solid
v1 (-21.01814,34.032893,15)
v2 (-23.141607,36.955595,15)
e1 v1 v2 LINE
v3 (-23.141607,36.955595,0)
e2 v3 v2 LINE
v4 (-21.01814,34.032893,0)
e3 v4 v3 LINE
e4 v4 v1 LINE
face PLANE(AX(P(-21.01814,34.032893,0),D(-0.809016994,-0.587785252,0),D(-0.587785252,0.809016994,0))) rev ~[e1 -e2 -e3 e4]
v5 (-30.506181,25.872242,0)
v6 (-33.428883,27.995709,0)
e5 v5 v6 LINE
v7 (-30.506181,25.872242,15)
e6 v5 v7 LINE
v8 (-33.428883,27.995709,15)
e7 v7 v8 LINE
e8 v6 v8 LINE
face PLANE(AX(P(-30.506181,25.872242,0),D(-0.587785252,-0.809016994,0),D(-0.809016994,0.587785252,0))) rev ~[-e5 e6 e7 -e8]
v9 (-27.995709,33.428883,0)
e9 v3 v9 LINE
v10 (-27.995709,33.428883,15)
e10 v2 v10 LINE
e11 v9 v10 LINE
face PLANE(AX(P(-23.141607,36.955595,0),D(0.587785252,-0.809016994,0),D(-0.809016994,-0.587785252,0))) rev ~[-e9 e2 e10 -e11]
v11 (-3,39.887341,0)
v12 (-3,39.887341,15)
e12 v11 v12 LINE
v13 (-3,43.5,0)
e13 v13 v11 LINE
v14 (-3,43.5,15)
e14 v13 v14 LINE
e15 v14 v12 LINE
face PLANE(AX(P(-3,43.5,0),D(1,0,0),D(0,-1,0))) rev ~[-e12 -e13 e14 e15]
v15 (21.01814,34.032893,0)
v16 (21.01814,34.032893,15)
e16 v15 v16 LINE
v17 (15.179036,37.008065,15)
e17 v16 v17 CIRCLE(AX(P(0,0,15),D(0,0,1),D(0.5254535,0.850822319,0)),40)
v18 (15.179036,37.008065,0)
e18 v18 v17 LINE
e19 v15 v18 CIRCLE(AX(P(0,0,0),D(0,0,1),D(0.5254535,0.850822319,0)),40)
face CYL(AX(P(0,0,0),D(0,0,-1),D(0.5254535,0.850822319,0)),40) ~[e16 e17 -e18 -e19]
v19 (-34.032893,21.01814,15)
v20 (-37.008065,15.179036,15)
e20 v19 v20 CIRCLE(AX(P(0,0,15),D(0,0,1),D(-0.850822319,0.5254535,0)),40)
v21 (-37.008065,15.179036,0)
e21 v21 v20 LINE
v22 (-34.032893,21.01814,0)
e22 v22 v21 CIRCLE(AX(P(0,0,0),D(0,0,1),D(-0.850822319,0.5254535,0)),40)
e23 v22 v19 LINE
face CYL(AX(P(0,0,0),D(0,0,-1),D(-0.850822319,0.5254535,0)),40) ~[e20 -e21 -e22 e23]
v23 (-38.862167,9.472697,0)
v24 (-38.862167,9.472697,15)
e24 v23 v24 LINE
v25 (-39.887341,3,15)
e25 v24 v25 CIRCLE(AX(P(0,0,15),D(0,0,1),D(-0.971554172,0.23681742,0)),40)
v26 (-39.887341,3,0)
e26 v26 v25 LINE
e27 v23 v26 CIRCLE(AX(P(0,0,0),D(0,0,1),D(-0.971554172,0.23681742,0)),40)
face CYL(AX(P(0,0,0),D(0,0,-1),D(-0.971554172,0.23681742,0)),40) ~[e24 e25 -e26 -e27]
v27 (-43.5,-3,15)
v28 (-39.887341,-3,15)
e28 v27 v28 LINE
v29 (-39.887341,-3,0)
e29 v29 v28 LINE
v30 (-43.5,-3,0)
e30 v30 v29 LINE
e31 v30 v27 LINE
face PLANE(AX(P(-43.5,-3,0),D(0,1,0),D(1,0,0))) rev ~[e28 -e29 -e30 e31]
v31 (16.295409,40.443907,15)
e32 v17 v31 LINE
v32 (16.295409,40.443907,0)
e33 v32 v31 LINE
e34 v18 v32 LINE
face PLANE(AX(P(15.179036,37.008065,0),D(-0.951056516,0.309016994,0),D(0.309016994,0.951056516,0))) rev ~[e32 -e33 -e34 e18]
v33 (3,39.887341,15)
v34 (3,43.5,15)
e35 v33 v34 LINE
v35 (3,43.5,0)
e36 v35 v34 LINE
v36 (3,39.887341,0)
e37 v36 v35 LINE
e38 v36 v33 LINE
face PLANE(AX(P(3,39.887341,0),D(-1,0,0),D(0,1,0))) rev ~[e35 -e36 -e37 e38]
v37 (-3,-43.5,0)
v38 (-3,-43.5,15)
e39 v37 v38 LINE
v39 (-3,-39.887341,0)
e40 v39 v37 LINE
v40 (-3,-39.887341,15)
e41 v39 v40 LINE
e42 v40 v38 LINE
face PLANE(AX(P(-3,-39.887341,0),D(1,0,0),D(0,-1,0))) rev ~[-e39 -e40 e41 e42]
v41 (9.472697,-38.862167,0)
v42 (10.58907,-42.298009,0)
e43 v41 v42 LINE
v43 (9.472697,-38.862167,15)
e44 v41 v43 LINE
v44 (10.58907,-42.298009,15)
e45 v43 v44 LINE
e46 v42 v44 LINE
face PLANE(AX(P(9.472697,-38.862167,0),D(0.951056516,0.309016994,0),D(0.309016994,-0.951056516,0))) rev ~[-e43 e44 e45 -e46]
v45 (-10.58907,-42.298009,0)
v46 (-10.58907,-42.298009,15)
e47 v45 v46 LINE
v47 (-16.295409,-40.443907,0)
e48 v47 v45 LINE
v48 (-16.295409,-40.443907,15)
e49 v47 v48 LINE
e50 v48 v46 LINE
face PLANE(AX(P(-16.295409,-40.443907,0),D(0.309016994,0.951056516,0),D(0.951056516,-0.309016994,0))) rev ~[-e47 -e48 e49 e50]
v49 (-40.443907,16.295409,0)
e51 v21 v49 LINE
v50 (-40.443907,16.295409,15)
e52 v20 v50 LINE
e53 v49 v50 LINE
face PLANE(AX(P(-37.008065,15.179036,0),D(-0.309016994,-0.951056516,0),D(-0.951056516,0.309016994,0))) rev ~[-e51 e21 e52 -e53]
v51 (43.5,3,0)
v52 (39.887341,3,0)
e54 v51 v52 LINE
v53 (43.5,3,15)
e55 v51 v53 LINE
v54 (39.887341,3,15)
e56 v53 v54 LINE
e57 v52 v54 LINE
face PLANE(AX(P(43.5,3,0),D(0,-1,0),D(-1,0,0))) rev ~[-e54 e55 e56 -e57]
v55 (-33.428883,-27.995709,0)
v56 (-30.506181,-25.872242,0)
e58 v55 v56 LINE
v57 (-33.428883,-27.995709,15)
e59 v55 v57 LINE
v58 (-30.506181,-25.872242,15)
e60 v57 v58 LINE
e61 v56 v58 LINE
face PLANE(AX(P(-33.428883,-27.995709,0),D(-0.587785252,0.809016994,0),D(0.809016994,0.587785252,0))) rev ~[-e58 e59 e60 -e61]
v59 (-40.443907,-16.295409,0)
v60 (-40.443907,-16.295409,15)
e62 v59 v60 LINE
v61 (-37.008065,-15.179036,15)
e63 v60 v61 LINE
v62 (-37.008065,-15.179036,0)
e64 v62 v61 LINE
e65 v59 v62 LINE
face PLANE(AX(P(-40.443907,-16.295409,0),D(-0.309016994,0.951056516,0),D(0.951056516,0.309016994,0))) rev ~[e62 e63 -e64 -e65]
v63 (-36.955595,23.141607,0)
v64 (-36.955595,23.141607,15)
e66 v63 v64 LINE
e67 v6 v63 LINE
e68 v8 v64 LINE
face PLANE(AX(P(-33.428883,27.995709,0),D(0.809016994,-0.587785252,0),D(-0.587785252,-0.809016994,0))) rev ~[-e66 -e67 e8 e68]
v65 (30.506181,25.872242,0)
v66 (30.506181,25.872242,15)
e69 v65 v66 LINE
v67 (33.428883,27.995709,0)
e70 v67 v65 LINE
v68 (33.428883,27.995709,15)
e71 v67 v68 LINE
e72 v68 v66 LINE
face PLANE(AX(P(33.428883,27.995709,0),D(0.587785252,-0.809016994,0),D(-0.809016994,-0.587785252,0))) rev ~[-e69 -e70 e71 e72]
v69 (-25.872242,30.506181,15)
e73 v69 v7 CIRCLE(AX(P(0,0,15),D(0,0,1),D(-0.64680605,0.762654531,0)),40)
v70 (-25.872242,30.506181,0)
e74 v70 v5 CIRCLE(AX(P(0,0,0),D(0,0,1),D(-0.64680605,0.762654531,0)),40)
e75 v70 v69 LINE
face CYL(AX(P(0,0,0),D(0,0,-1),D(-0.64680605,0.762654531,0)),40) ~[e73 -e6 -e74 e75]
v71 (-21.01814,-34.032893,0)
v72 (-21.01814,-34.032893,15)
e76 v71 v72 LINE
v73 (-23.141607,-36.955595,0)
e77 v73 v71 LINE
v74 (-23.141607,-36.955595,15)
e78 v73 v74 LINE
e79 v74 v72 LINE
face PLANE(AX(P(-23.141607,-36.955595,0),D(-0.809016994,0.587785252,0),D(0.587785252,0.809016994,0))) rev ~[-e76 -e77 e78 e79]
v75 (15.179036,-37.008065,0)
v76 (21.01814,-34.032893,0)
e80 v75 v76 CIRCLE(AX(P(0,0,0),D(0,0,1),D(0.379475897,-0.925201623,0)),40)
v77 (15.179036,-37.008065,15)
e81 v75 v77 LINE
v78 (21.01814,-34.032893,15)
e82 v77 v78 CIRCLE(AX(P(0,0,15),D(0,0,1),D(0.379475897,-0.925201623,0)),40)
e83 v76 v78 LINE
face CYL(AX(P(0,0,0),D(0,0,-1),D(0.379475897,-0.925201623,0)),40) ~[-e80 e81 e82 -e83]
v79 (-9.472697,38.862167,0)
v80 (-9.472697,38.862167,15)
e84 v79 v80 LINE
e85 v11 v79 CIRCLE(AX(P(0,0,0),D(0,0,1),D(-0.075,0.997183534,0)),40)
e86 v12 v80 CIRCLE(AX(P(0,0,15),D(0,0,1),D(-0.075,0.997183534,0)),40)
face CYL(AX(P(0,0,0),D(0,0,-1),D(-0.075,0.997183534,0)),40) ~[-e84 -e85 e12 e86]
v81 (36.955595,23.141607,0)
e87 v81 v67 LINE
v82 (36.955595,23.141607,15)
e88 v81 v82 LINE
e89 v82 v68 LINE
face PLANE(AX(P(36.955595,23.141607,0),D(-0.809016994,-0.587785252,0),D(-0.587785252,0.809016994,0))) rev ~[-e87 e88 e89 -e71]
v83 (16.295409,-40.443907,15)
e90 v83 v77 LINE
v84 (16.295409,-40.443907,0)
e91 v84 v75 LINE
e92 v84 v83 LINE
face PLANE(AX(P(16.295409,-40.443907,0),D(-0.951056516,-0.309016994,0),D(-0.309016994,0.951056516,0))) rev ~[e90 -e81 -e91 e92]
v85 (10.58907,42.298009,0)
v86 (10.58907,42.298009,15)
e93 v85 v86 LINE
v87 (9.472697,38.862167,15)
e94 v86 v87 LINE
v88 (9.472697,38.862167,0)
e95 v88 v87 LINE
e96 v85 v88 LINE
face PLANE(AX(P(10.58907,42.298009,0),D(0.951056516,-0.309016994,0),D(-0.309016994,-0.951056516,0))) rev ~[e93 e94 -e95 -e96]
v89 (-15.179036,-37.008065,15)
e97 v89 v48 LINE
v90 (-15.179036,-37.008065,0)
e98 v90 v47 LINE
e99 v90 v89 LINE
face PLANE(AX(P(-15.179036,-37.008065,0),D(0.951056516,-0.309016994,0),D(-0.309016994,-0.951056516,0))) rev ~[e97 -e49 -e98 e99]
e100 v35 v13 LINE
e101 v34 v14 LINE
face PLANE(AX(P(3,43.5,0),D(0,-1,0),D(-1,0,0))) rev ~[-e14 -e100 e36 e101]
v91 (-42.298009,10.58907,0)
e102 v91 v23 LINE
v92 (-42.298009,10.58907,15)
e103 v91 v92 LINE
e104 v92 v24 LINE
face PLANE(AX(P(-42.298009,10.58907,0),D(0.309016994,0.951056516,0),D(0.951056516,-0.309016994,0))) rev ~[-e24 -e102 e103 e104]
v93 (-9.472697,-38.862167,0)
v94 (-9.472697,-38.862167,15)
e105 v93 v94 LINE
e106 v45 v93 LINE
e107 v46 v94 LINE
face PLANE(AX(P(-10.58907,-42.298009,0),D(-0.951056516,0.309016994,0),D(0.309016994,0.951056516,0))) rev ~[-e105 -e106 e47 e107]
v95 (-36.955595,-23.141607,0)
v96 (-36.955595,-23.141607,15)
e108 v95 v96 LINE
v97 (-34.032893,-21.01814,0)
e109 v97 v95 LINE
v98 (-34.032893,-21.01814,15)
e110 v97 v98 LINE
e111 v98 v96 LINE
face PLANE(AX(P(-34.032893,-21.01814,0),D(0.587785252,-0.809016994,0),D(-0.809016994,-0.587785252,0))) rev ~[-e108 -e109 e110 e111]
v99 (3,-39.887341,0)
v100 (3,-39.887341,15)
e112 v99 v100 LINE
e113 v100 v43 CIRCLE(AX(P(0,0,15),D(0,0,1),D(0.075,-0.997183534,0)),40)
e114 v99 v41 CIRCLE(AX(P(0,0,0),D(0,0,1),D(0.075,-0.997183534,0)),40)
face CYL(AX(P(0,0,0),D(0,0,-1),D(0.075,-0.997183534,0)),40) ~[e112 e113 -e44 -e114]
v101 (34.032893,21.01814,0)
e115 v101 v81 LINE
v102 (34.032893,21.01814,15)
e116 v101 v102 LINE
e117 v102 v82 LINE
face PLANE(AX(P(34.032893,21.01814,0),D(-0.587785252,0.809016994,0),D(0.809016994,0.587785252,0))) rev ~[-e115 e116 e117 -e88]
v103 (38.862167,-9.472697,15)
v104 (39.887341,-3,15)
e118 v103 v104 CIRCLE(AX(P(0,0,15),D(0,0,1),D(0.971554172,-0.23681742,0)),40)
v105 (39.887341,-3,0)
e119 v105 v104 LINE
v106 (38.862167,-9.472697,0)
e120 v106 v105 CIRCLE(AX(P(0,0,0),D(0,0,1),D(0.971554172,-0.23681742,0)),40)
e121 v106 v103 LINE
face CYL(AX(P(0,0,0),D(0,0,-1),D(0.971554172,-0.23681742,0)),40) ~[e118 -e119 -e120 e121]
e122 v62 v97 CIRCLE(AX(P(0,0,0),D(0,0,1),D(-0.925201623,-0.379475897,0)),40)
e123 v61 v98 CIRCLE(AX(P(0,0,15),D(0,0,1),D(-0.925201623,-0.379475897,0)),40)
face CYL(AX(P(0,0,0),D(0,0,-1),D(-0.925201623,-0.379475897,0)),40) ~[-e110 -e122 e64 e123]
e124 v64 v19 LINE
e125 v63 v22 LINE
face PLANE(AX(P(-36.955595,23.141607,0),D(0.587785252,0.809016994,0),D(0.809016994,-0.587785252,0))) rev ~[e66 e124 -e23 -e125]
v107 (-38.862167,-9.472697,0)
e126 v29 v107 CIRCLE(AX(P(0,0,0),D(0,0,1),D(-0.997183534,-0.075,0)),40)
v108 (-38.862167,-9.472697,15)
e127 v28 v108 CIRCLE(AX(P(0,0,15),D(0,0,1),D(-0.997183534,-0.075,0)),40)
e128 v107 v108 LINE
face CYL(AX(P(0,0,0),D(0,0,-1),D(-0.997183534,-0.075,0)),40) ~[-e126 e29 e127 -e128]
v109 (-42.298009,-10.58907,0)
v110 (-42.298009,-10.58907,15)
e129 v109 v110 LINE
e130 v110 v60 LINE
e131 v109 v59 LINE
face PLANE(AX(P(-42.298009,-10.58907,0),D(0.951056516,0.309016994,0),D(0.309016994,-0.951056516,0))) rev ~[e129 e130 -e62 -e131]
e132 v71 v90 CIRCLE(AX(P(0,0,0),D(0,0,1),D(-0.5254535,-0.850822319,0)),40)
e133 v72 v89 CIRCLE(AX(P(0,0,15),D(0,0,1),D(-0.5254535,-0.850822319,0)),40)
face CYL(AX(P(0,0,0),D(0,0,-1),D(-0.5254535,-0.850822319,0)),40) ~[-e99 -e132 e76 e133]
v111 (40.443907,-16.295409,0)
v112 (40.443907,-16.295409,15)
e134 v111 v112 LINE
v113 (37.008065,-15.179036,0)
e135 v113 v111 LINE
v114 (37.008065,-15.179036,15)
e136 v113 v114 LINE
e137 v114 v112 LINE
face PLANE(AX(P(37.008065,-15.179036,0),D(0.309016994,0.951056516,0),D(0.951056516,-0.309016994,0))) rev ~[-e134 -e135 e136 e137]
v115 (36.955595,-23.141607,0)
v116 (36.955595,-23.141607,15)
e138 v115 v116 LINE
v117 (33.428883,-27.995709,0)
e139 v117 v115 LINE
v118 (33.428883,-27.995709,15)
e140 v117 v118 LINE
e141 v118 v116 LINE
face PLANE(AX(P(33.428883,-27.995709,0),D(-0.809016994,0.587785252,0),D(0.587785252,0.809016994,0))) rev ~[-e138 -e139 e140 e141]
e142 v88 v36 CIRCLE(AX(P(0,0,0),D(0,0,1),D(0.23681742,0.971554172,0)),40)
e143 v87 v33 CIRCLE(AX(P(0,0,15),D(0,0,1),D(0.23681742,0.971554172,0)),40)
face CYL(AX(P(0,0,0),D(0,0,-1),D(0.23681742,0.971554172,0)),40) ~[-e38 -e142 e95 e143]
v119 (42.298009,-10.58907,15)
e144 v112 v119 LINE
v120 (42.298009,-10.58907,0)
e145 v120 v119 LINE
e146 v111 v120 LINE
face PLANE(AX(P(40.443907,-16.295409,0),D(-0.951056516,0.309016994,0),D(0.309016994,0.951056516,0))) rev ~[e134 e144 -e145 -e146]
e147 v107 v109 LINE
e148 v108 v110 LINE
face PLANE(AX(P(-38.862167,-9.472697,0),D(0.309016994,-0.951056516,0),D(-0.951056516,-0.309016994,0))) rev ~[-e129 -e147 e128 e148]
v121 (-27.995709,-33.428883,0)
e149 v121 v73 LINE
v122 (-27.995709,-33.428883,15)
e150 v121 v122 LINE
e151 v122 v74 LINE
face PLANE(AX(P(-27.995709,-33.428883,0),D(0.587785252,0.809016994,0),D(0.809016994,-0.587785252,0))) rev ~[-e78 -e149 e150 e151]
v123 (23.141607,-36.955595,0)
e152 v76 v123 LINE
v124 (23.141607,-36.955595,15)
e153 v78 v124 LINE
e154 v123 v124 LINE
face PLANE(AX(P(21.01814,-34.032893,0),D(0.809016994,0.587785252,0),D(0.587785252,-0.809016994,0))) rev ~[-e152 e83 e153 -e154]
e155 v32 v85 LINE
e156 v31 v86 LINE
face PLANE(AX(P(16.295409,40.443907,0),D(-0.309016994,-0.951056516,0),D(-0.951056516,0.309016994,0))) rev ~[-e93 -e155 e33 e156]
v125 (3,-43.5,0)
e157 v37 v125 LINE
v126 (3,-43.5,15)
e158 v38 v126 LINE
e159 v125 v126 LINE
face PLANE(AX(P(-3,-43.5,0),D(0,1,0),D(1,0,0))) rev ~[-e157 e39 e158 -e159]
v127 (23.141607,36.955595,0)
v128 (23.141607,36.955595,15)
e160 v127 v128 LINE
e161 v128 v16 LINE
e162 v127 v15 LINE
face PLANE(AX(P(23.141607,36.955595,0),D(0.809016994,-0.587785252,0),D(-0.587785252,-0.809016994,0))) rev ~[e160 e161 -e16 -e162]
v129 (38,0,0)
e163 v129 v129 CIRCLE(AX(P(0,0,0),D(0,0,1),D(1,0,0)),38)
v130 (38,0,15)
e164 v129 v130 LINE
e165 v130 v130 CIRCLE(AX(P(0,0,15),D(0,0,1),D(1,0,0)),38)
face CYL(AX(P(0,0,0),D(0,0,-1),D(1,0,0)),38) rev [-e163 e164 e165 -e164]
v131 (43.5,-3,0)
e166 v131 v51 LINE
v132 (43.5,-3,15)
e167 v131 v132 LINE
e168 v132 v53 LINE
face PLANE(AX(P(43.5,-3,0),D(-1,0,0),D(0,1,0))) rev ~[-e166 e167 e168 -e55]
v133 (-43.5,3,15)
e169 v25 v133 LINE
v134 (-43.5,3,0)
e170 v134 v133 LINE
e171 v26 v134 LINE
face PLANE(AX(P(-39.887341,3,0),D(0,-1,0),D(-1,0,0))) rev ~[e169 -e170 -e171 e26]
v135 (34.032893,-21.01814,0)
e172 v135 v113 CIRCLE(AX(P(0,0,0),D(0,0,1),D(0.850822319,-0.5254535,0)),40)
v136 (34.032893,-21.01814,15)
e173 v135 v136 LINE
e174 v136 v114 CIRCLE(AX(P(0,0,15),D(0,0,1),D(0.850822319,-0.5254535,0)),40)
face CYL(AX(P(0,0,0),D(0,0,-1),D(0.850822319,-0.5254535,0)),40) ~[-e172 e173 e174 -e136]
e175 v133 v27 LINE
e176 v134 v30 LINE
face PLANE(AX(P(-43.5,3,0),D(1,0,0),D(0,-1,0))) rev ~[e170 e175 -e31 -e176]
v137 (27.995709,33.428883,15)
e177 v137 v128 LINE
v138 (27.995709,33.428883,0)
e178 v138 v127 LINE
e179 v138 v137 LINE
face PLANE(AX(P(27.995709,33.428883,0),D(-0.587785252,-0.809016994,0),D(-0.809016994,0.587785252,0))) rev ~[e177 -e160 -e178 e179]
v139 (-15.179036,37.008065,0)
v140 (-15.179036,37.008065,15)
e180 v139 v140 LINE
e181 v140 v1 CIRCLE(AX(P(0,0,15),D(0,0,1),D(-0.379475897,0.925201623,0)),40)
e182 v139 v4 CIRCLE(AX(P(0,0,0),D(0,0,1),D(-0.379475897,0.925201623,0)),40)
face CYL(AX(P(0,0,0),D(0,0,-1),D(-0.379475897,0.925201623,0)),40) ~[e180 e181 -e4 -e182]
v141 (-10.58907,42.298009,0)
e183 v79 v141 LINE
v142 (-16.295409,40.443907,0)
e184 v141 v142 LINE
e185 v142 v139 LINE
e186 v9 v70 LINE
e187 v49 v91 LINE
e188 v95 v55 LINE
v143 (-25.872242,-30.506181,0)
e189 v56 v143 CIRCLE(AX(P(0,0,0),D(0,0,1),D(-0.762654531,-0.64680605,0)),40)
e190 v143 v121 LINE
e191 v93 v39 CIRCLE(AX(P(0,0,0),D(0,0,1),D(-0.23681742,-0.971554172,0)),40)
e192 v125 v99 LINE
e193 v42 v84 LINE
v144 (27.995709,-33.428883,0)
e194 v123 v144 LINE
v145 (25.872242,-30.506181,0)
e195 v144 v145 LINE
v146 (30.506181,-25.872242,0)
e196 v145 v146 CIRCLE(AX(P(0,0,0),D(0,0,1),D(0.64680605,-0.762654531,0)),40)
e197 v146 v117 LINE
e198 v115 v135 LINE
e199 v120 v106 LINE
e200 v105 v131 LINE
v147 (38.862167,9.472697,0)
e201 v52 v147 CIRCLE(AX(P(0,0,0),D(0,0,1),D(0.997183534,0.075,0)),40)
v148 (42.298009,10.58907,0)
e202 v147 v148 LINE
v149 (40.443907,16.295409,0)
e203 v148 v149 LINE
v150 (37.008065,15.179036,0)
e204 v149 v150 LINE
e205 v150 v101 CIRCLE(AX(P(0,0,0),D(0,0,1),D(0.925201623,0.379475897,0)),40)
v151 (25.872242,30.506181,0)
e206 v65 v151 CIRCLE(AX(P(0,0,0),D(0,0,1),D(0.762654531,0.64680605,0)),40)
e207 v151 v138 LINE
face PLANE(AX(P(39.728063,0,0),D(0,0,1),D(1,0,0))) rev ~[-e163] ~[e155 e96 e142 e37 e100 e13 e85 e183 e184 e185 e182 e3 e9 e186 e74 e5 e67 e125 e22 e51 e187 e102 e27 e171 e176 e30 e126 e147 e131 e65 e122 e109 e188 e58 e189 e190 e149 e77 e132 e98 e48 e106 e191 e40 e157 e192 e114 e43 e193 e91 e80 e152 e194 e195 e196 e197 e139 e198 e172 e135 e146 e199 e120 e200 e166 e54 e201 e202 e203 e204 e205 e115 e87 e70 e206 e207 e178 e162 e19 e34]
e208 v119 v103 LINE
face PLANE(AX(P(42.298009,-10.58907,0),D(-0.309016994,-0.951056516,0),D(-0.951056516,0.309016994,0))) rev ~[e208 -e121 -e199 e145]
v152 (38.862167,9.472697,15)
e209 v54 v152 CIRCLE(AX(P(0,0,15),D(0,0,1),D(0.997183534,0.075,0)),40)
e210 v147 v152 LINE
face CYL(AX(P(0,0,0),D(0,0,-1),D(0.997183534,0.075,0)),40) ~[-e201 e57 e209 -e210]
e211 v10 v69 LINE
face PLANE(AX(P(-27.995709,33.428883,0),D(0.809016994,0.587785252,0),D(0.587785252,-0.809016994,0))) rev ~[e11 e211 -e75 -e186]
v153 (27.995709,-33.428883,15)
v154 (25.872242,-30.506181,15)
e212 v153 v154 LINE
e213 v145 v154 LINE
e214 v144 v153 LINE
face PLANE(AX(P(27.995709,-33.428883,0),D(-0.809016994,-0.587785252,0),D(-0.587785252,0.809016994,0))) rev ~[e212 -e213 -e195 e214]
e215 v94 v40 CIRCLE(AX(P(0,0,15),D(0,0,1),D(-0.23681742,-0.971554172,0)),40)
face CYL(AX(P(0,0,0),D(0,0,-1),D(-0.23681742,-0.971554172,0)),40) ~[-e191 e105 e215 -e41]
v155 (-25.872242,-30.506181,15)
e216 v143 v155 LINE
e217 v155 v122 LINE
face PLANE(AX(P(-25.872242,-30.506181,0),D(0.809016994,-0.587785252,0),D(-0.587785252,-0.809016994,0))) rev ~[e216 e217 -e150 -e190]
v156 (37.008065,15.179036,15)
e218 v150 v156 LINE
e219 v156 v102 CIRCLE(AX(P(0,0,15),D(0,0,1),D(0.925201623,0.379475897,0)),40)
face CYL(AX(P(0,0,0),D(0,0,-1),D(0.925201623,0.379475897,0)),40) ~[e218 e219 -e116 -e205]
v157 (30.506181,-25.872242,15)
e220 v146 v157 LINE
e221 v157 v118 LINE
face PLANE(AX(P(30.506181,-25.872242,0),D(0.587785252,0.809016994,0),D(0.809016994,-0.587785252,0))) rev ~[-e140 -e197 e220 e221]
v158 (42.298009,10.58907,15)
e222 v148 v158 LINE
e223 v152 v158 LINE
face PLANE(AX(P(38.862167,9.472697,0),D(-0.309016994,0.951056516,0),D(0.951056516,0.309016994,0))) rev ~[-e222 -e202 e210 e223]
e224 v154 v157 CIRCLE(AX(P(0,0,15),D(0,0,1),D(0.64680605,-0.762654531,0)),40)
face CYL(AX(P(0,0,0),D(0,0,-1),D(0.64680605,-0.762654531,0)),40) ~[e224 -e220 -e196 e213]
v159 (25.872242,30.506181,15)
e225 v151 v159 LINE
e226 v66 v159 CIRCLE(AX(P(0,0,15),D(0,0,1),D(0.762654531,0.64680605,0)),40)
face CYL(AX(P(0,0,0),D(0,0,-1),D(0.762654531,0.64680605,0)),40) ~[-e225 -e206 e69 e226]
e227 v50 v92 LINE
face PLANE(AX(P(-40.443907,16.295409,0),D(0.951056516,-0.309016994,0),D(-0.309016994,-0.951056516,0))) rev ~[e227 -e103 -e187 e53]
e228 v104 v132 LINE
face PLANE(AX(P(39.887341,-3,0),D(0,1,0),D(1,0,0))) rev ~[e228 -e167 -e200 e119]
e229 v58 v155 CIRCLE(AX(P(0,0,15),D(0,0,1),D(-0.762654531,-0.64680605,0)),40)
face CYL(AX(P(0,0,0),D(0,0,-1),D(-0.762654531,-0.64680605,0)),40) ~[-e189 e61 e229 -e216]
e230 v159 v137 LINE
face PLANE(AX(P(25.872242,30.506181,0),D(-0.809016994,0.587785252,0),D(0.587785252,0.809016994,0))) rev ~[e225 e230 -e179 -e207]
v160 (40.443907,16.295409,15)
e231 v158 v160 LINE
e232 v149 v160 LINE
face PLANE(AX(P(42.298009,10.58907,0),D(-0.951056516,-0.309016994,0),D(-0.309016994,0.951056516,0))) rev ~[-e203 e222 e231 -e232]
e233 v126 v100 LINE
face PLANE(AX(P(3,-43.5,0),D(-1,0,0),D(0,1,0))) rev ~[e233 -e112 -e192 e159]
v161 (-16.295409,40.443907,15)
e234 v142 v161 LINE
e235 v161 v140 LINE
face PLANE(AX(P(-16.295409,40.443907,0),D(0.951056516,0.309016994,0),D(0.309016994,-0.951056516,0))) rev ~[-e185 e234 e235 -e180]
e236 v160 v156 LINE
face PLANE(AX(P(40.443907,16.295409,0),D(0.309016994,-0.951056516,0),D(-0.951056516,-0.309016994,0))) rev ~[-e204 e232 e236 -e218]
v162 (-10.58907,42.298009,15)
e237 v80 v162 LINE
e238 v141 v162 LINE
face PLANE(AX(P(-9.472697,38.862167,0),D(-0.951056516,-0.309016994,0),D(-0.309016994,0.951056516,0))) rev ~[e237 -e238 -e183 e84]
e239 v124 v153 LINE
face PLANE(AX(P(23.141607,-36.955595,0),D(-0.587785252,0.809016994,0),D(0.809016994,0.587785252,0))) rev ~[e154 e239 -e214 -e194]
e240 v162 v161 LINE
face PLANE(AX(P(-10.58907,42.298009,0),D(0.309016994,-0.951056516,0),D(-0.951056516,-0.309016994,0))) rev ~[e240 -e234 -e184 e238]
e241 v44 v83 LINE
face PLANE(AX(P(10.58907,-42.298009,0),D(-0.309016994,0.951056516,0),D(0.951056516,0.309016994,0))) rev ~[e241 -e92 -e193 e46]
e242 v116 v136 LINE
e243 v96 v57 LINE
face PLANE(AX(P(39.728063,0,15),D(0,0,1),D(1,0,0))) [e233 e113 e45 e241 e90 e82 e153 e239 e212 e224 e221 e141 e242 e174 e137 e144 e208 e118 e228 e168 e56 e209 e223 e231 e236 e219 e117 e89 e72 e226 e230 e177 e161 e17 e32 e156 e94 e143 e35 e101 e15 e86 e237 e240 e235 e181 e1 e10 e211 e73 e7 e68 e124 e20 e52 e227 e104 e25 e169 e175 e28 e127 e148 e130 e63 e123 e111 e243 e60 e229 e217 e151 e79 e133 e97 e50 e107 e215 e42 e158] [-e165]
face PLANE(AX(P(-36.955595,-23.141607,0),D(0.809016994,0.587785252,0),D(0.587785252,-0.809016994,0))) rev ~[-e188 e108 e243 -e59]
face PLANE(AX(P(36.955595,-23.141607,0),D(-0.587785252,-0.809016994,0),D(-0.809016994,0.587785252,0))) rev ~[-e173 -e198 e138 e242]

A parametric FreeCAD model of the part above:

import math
import FreeCAD as App
import Part
import Sketcher
Q = App.Units.Quantity

doc = App.newDocument("Part")
params = doc.addObject("Spreadsheet::Sheet", "Params")
for row, (alias, value) in enumerate([
    ("sketch1_diameter", "76 mm"),
    ("sketch1_radius", "40 mm"),
    ("sketch1_width", "6 mm"),
    ("sketch1_length", "6 mm"),
    ("pad1_length", "15 mm"),
], start=1):
    params.set(f"A{row}", alias)
    params.set(f"B{row}", "=" + value)
    params.setAlias(f"B{row}", alias)

body = doc.addObject("PartDesign::Body", "Body")

# Sketch on XY plane
sketch1 = body.newObject("Sketcher::SketchObject", "Sketch")
sketch1.AttachmentSupport = (doc.getObject("XY_Plane"), [""])
sketch1.MapMode = "FlatFace"
sketch1.addGeometry([
    Part.LineSegment(App.Vector(39.9, -3, 0), App.Vector(43.5, -3, 0)),  # 0
    Part.LineSegment(App.Vector(43.5, -3, 0), App.Vector(43.5, 3, 0)),  # 1
    Part.LineSegment(App.Vector(43.5, 3, 0), App.Vector(39.9, 3, 0)),  # 2
    Part.ArcOfCircle(Part.Circle(App.Vector(0, 0, 0), App.Vector(0, 0, 1), 40), math.radians(4.3), math.radians(13.7)),  # 3
    Part.LineSegment(App.Vector(38.9, 9.5, 0), App.Vector(42.3, 10.6, 0)),  # 4
    Part.LineSegment(App.Vector(42.3, 10.6, 0), App.Vector(40.4, 16.3, 0)),  # 5
    Part.LineSegment(App.Vector(40.4, 16.3, 0), App.Vector(37, 15.2, 0)),  # 6
    Part.ArcOfCircle(Part.Circle(App.Vector(0, 0, 0), App.Vector(0, 0, 1), 40), math.radians(22.3), math.radians(31.7)),  # 7
    Part.LineSegment(App.Vector(34, 21, 0), App.Vector(37, 23.1, 0)),  # 8
    Part.LineSegment(App.Vector(37, 23.1, 0), App.Vector(33.4, 28, 0)),  # 9
    Part.LineSegment(App.Vector(33.4, 28, 0), App.Vector(30.5, 25.9, 0)),  # 10
    Part.ArcOfCircle(Part.Circle(App.Vector(0, 0, 0), App.Vector(0, 0, 1), 40), math.radians(40.3), math.radians(49.7)),  # 11
    Part.LineSegment(App.Vector(25.9, 30.5, 0), App.Vector(28, 33.4, 0)),  # 12
    Part.LineSegment(App.Vector(28, 33.4, 0), App.Vector(23.1, 37, 0)),  # 13
    Part.LineSegment(App.Vector(23.1, 37, 0), App.Vector(21, 34, 0)),  # 14
    Part.ArcOfCircle(Part.Circle(App.Vector(0, 0, 0), App.Vector(0, 0, 1), 40), math.radians(58.3), math.radians(67.7)),  # 15
    Part.LineSegment(App.Vector(15.2, 37, 0), App.Vector(16.3, 40.4, 0)),  # 16
    Part.LineSegment(App.Vector(16.3, 40.4, 0), App.Vector(10.6, 42.3, 0)),  # 17
    Part.LineSegment(App.Vector(10.6, 42.3, 0), App.Vector(9.5, 38.9, 0)),  # 18
    Part.ArcOfCircle(Part.Circle(App.Vector(0, 0, 0), App.Vector(0, 0, 1), 40), math.radians(76.3), math.radians(85.7)),  # 19
    Part.LineSegment(App.Vector(3, 39.9, 0), App.Vector(3, 43.5, 0)),  # 20
    Part.LineSegment(App.Vector(3, 43.5, 0), App.Vector(-3, 43.5, 0)),  # 21
    Part.LineSegment(App.Vector(-3, 43.5, 0), App.Vector(-3, 39.9, 0)),  # 22
    Part.ArcOfCircle(Part.Circle(App.Vector(0, 0, 0), App.Vector(0, 0, 1), 40), math.radians(94.3), math.radians(103.7)),  # 23
    Part.LineSegment(App.Vector(-9.5, 38.9, 0), App.Vector(-10.6, 42.3, 0)),  # 24
    Part.LineSegment(App.Vector(-10.6, 42.3, 0), App.Vector(-16.3, 40.4, 0)),  # 25
    Part.LineSegment(App.Vector(-16.3, 40.4, 0), App.Vector(-15.2, 37, 0)),  # 26
    Part.ArcOfCircle(Part.Circle(App.Vector(0, 0, 0), App.Vector(0, 0, 1), 40), math.radians(112.3), math.radians(121.7)),  # 27
    Part.LineSegment(App.Vector(-21, 34, 0), App.Vector(-23.1, 37, 0)),  # 28
    Part.LineSegment(App.Vector(-23.1, 37, 0), App.Vector(-28, 33.4, 0)),  # 29
    Part.LineSegment(App.Vector(-28, 33.4, 0), App.Vector(-25.9, 30.5, 0)),  # 30
    Part.ArcOfCircle(Part.Circle(App.Vector(0, 0, 0), App.Vector(0, 0, 1), 40), math.radians(130.3), math.radians(139.7)),  # 31
    Part.LineSegment(App.Vector(-30.5, 25.9, 0), App.Vector(-33.4, 28, 0)),  # 32
    Part.LineSegment(App.Vector(-33.4, 28, 0), App.Vector(-37, 23.1, 0)),  # 33
    Part.LineSegment(App.Vector(-37, 23.1, 0), App.Vector(-34, 21, 0)),  # 34
    Part.ArcOfCircle(Part.Circle(App.Vector(0, 0, 0), App.Vector(0, 0, 1), 40), math.radians(148.3), math.radians(157.7)),  # 35
    Part.LineSegment(App.Vector(-37, 15.2, 0), App.Vector(-40.4, 16.3, 0)),  # 36
    Part.LineSegment(App.Vector(-40.4, 16.3, 0), App.Vector(-42.3, 10.6, 0)),  # 37
    Part.LineSegment(App.Vector(-42.3, 10.6, 0), App.Vector(-38.9, 9.5, 0)),  # 38
    Part.ArcOfCircle(Part.Circle(App.Vector(0, 0, 0), App.Vector(0, 0, 1), 40), math.radians(166.3), math.radians(175.7)),  # 39
    Part.LineSegment(App.Vector(-39.9, 3, 0), App.Vector(-43.5, 3, 0)),  # 40
    Part.LineSegment(App.Vector(-43.5, 3, 0), App.Vector(-43.5, -3, 0)),  # 41
    Part.LineSegment(App.Vector(-43.5, -3, 0), App.Vector(-39.9, -3, 0)),  # 42
    Part.ArcOfCircle(Part.Circle(App.Vector(0, 0, 0), App.Vector(0, 0, 1), 40), math.radians(-175.7), math.radians(-166.3)),  # 43
    Part.LineSegment(App.Vector(-38.9, -9.5, 0), App.Vector(-42.3, -10.6, 0)),  # 44
    Part.LineSegment(App.Vector(-42.3, -10.6, 0), App.Vector(-40.4, -16.3, 0)),  # 45
    Part.LineSegment(App.Vector(-40.4, -16.3, 0), App.Vector(-37, -15.2, 0)),  # 46
    Part.ArcOfCircle(Part.Circle(App.Vector(0, 0, 0), App.Vector(0, 0, 1), 40), math.radians(-157.7), math.radians(-148.3)),  # 47
    Part.LineSegment(App.Vector(-34, -21, 0), App.Vector(-37, -23.1, 0)),  # 48
    Part.LineSegment(App.Vector(-37, -23.1, 0), App.Vector(-33.4, -28, 0)),  # 49
    Part.LineSegment(App.Vector(-33.4, -28, 0), App.Vector(-30.5, -25.9, 0)),  # 50
    Part.ArcOfCircle(Part.Circle(App.Vector(0, 0, 0), App.Vector(0, 0, 1), 40), math.radians(-139.7), math.radians(-130.3)),  # 51
    Part.LineSegment(App.Vector(-25.9, -30.5, 0), App.Vector(-28, -33.4, 0)),  # 52
    Part.LineSegment(App.Vector(-28, -33.4, 0), App.Vector(-23.1, -37, 0)),  # 53
    Part.LineSegment(App.Vector(-23.1, -37, 0), App.Vector(-21, -34, 0)),  # 54
    Part.ArcOfCircle(Part.Circle(App.Vector(0, 0, 0), App.Vector(0, 0, 1), 40), math.radians(-121.7), math.radians(-112.3)),  # 55
    Part.LineSegment(App.Vector(-15.2, -37, 0), App.Vector(-16.3, -40.4, 0)),  # 56
    Part.LineSegment(App.Vector(-16.3, -40.4, 0), App.Vector(-10.6, -42.3, 0)),  # 57
    Part.LineSegment(App.Vector(-10.6, -42.3, 0), App.Vector(-9.5, -38.9, 0)),  # 58
    Part.ArcOfCircle(Part.Circle(App.Vector(0, 0, 0), App.Vector(0, 0, 1), 40), math.radians(-103.7), math.radians(-94.3)),  # 59
    Part.LineSegment(App.Vector(-3, -39.9, 0), App.Vector(-3, -43.5, 0)),  # 60
    Part.LineSegment(App.Vector(-3, -43.5, 0), App.Vector(3, -43.5, 0)),  # 61
    Part.LineSegment(App.Vector(3, -43.5, 0), App.Vector(3, -39.9, 0)),  # 62
    Part.ArcOfCircle(Part.Circle(App.Vector(0, 0, 0), App.Vector(0, 0, 1), 40), math.radians(-85.7), math.radians(-76.3)),  # 63
    Part.LineSegment(App.Vector(9.5, -38.9, 0), App.Vector(10.6, -42.3, 0)),  # 64
    Part.LineSegment(App.Vector(10.6, -42.3, 0), App.Vector(16.3, -40.4, 0)),  # 65
    Part.LineSegment(App.Vector(16.3, -40.4, 0), App.Vector(15.2, -37, 0)),  # 66
    Part.ArcOfCircle(Part.Circle(App.Vector(0, 0, 0), App.Vector(0, 0, 1), 40), math.radians(-67.7), math.radians(-58.3)),  # 67
    Part.LineSegment(App.Vector(21, -34, 0), App.Vector(23.1, -37, 0)),  # 68
    Part.LineSegment(App.Vector(23.1, -37, 0), App.Vector(28, -33.4, 0)),  # 69
    Part.LineSegment(App.Vector(28, -33.4, 0), App.Vector(25.9, -30.5, 0)),  # 70
    Part.ArcOfCircle(Part.Circle(App.Vector(0, 0, 0), App.Vector(0, 0, 1), 40), math.radians(-49.7), math.radians(-40.3)),  # 71
    Part.LineSegment(App.Vector(30.5, -25.9, 0), App.Vector(33.4, -28, 0)),  # 72
    Part.LineSegment(App.Vector(33.4, -28, 0), App.Vector(37, -23.1, 0)),  # 73
    Part.LineSegment(App.Vector(37, -23.1, 0), App.Vector(34, -21, 0)),  # 74
    Part.ArcOfCircle(Part.Circle(App.Vector(0, 0, 0), App.Vector(0, 0, 1), 40), math.radians(-31.7), math.radians(-22.3)),  # 75
    Part.LineSegment(App.Vector(37, -15.2, 0), App.Vector(40.4, -16.3, 0)),  # 76
    Part.LineSegment(App.Vector(40.4, -16.3, 0), App.Vector(42.3, -10.6, 0)),  # 77
    Part.LineSegment(App.Vector(42.3, -10.6, 0), App.Vector(38.9, -9.5, 0)),  # 78
    Part.ArcOfCircle(Part.Circle(App.Vector(0, 0, 0), App.Vector(0, 0, 1), 40), math.radians(-13.7), math.radians(-4.3)),  # 79
    Part.Circle(App.Vector(0, 0, 0), App.Vector(0, 0, 1), 38),  # 80
], False)
sketch1.addConstraint([
    Sketcher.Constraint("Coincident", 0, 2, 1, 1),
    Sketcher.Constraint("Coincident", 1, 2, 2, 1),
    Sketcher.Constraint("Coincident", 2, 2, 3, 1),
    Sketcher.Constraint("Coincident", 3, 2, 4, 1),
    Sketcher.Constraint("Coincident", 4, 2, 5, 1),
    Sketcher.Constraint("Coincident", 5, 2, 6, 1),
    Sketcher.Constraint("Coincident", 6, 2, 7, 1),
    Sketcher.Constraint("Coincident", 7, 2, 8, 1),
    Sketcher.Constraint("Coincident", 8, 2, 9, 1),
    Sketcher.Constraint("Coincident", 9, 2, 10, 1),
    Sketcher.Constraint("Coincident", 10, 2, 11, 1),
    Sketcher.Constraint("Coincident", 11, 2, 12, 1),
    Sketcher.Constraint("Coincident", 12, 2, 13, 1),
    Sketcher.Constraint("Coincident", 13, 2, 14, 1),
    Sketcher.Constraint("Coincident", 14, 2, 15, 1),
    Sketcher.Constraint("Coincident", 15, 2, 16, 1),
    Sketcher.Constraint("Coincident", 16, 2, 17, 1),
    Sketcher.Constraint("Coincident", 17, 2, 18, 1),
    Sketcher.Constraint("Coincident", 18, 2, 19, 1),
    Sketcher.Constraint("Coincident", 19, 2, 20, 1),
    Sketcher.Constraint("Coincident", 20, 2, 21, 1),
    Sketcher.Constraint("Coincident", 21, 2, 22, 1),
    Sketcher.Constraint("Coincident", 22, 2, 23, 1),
    Sketcher.Constraint("Coincident", 23, 2, 24, 1),
    Sketcher.Constraint("Coincident", 24, 2, 25, 1),
    Sketcher.Constraint("Coincident", 25, 2, 26, 1),
    Sketcher.Constraint("Coincident", 26, 2, 27, 1),
    Sketcher.Constraint("Coincident", 27, 2, 28, 1),
    Sketcher.Constraint("Coincident", 28, 2, 29, 1),
    Sketcher.Constraint("Coincident", 29, 2, 30, 1),
    Sketcher.Constraint("Coincident", 30, 2, 31, 1),
    Sketcher.Constraint("Coincident", 31, 2, 32, 1),
    Sketcher.Constraint("Coincident", 32, 2, 33, 1),
    Sketcher.Constraint("Coincident", 33, 2, 34, 1),
    Sketcher.Constraint("Coincident", 34, 2, 35, 1),
    Sketcher.Constraint("Coincident", 35, 2, 36, 1),
    Sketcher.Constraint("Coincident", 36, 2, 37, 1),
    Sketcher.Constraint("Coincident", 37, 2, 38, 1),
    Sketcher.Constraint("Coincident", 38, 2, 39, 1),
    Sketcher.Constraint("Coincident", 39, 2, 40, 1),
    Sketcher.Constraint("Coincident", 40, 2, 41, 1),
    Sketcher.Constraint("Coincident", 41, 2, 42, 1),
    Sketcher.Constraint("Coincident", 42, 2, 43, 1),
    Sketcher.Constraint("Coincident", 43, 2, 44, 1),
    Sketcher.Constraint("Coincident", 44, 2, 45, 1),
    Sketcher.Constraint("Coincident", 45, 2, 46, 1),
    Sketcher.Constraint("Coincident", 46, 2, 47, 1),
    Sketcher.Constraint("Coincident", 47, 2, 48, 1),
    Sketcher.Constraint("Coincident", 48, 2, 49, 1),
    Sketcher.Constraint("Coincident", 49, 2, 50, 1),
    Sketcher.Constraint("Coincident", 50, 2, 51, 1),
    Sketcher.Constraint("Coincident", 51, 2, 52, 1),
    Sketcher.Constraint("Coincident", 52, 2, 53, 1),
    Sketcher.Constraint("Coincident", 53, 2, 54, 1),
    Sketcher.Constraint("Coincident", 54, 2, 55, 1),
    Sketcher.Constraint("Coincident", 55, 2, 56, 1),
    Sketcher.Constraint("Coincident", 56, 2, 57, 1),
    Sketcher.Constraint("Coincident", 57, 2, 58, 1),
    Sketcher.Constraint("Coincident", 58, 2, 59, 1),
    Sketcher.Constraint("Coincident", 59, 2, 60, 1),
    Sketcher.Constraint("Coincident", 60, 2, 61, 1),
    Sketcher.Constraint("Coincident", 61, 2, 62, 1),
    Sketcher.Constraint("Coincident", 62, 2, 63, 1),
    Sketcher.Constraint("Coincident", 63, 2, 64, 1),
    Sketcher.Constraint("Coincident", 64, 2, 65, 1),
    Sketcher.Constraint("Coincident", 65, 2, 66, 1),
    Sketcher.Constraint("Coincident", 66, 2, 67, 1),
    Sketcher.Constraint("Coincident", 67, 2, 68, 1),
    Sketcher.Constraint("Coincident", 68, 2, 69, 1),
    Sketcher.Constraint("Coincident", 69, 2, 70, 1),
    Sketcher.Constraint("Coincident", 70, 2, 71, 1),
    Sketcher.Constraint("Coincident", 71, 2, 72, 1),
    Sketcher.Constraint("Coincident", 72, 2, 73, 1),
    Sketcher.Constraint("Coincident", 73, 2, 74, 1),
    Sketcher.Constraint("Coincident", 74, 2, 75, 1),
    Sketcher.Constraint("Coincident", 75, 2, 76, 1),
    Sketcher.Constraint("Coincident", 76, 2, 77, 1),
    Sketcher.Constraint("Coincident", 77, 2, 78, 1),
    Sketcher.Constraint("Coincident", 78, 2, 79, 1),
    Sketcher.Constraint("Coincident", 79, 2, 0, 1),
    Sketcher.Constraint("Horizontal", 0),
    Sketcher.Constraint("Vertical", 1),
    Sketcher.Constraint("Horizontal", 2),
    Sketcher.Constraint("Vertical", 20),
    Sketcher.Constraint("Horizontal", 21),
    Sketcher.Constraint("Vertical", 22),
    Sketcher.Constraint("Horizontal", 40),
    Sketcher.Constraint("Vertical", 41),
    Sketcher.Constraint("Horizontal", 42),
    Sketcher.Constraint("Vertical", 60),
    Sketcher.Constraint("Horizontal", 61),
    Sketcher.Constraint("Vertical", 62),
    Sketcher.Constraint("Coincident", 3, 3, -1, 1),
    Sketcher.Constraint("Coincident", 7, 3, -1, 1),
    Sketcher.Constraint("Coincident", 11, 3, -1, 1),
    Sketcher.Constraint("Coincident", 15, 3, -1, 1),
    Sketcher.Constraint("Coincident", 19, 3, -1, 1),
    Sketcher.Constraint("Coincident", 23, 3, -1, 1),
    Sketcher.Constraint("Coincident", 27, 3, -1, 1),
    Sketcher.Constraint("Coincident", 31, 3, -1, 1),
    Sketcher.Constraint("Coincident", 35, 3, -1, 1),
    Sketcher.Constraint("Coincident", 39, 3, -1, 1),
    Sketcher.Constraint("Coincident", 43, 3, -1, 1),
    Sketcher.Constraint("Coincident", 47, 3, -1, 1),
    Sketcher.Constraint("Coincident", 51, 3, -1, 1),
    Sketcher.Constraint("Coincident", 55, 3, -1, 1),
    Sketcher.Constraint("Coincident", 59, 3, -1, 1),
    Sketcher.Constraint("Coincident", 63, 3, -1, 1),
    Sketcher.Constraint("Coincident", 67, 3, -1, 1),
    Sketcher.Constraint("Coincident", 71, 3, -1, 1),
    Sketcher.Constraint("Coincident", 75, 3, -1, 1),
    Sketcher.Constraint("Coincident", 79, 3, -1, 1),
    Sketcher.Constraint("Coincident", 80, 3, -1, 1),
    Sketcher.Constraint("Equal", 3, 7),
    Sketcher.Constraint("Equal", 7, 11),
    Sketcher.Constraint("Equal", 11, 15),
    Sketcher.Constraint("Equal", 15, 19),
    Sketcher.Constraint("Equal", 19, 23),
    Sketcher.Constraint("Equal", 23, 27),
    Sketcher.Constraint("Equal", 27, 31),
    Sketcher.Constraint("Equal", 31, 35),
    Sketcher.Constraint("Equal", 35, 39),
    Sketcher.Constraint("Equal", 39, 43),
    Sketcher.Constraint("Equal", 43, 47),
    Sketcher.Constraint("Equal", 47, 51),
    Sketcher.Constraint("Equal", 51, 55),
    Sketcher.Constraint("Equal", 55, 59),
    Sketcher.Constraint("Equal", 59, 63),
    Sketcher.Constraint("Equal", 63, 67),
    Sketcher.Constraint("Equal", 67, 71),
    Sketcher.Constraint("Equal", 71, 75),
    Sketcher.Constraint("Equal", 75, 79),
    Sketcher.Constraint("Symmetric", 0, 2, 40, 2, -1, 1),
    Sketcher.Constraint("Symmetric", 4, 2, 44, 2, -1, 1),
    Sketcher.Constraint("Symmetric", 5, 2, 45, 2, -1, 1),
    Sketcher.Constraint("Symmetric", 8, 2, 48, 2, -1, 1),
    Sketcher.Constraint("Symmetric", 9, 2, 49, 2, -1, 1),
    Sketcher.Constraint("Symmetric", 12, 2, 52, 2, -1, 1),
    Sketcher.Constraint("Symmetric", 13, 2, 53, 2, -1, 1),
    Sketcher.Constraint("Symmetric", 16, 2, 56, 2, -1, 1),
    Sketcher.Constraint("Symmetric", 17, 2, 57, 2, -1, 1),
    Sketcher.Constraint("Symmetric", 20, 2, 60, 2, -1, 1),
    Sketcher.Constraint("Symmetric", 24, 2, 64, 2, -1, 1),
    Sketcher.Constraint("Symmetric", 25, 2, 65, 2, -1, 1),
    Sketcher.Constraint("Symmetric", 28, 2, 68, 2, -1, 1),
    Sketcher.Constraint("Symmetric", 29, 2, 69, 2, -1, 1),
    Sketcher.Constraint("Symmetric", 32, 2, 72, 2, -1, 1),
    Sketcher.Constraint("Symmetric", 33, 2, 73, 2, -1, 1),
    Sketcher.Constraint("Symmetric", 36, 2, 76, 2, -1, 1),
    Sketcher.Constraint("Symmetric", 37, 2, 77, 2, -1, 1),
    Sketcher.Constraint("Symmetric", 17, 2, 24, 2, -2),
    Sketcher.Constraint("Symmetric", 16, 2, 25, 2, -2),
    Sketcher.Constraint("Symmetric", 13, 2, 28, 2, -2),
    Sketcher.Constraint("Symmetric", 12, 2, 29, 2, -2),
    Sketcher.Constraint("Symmetric", 9, 2, 32, 2, -2),
    Sketcher.Constraint("Symmetric", 8, 2, 33, 2, -2),
    Sketcher.Constraint("Symmetric", 5, 2, 36, 2, -2),
    Sketcher.Constraint("Symmetric", 4, 2, 37, 2, -2),
    Sketcher.Constraint("Perpendicular", 4, 5),
    Sketcher.Constraint("Perpendicular", 5, 6),
    Sketcher.Constraint("Perpendicular", 8, 9),
    Sketcher.Constraint("Perpendicular", 9, 10),
    Sketcher.Constraint("Perpendicular", 12, 13),
    Sketcher.Constraint("Perpendicular", 13, 14),
    Sketcher.Constraint("Perpendicular", 16, 17),
    Sketcher.Constraint("Perpendicular", 17, 18),
    Sketcher.Constraint("Perpendicular", 6, 24),
    Sketcher.Constraint("Perpendicular", 24, 25),
    Sketcher.Constraint("Perpendicular", 25, 26),
    Sketcher.Constraint("Perpendicular", 10, 28),
    Sketcher.Constraint("Perpendicular", 28, 29),
    Sketcher.Constraint("Perpendicular", 29, 30),
    Sketcher.Constraint("Perpendicular", 14, 32),
    Sketcher.Constraint("Perpendicular", 33, 34),
    Sketcher.Constraint("Perpendicular", 18, 36),
    Sketcher.Constraint("Perpendicular", 37, 38),
    Sketcher.Constraint("Perpendicular", 26, 44),
    Sketcher.Constraint("Perpendicular", 45, 46),
    Sketcher.Constraint("Perpendicular", 30, 48),
    Sketcher.Constraint("Perpendicular", 49, 50),
    Sketcher.Constraint("Perpendicular", 34, 52),
    Sketcher.Constraint("Perpendicular", 53, 54),
    Sketcher.Constraint("Perpendicular", 38, 56),
    Sketcher.Constraint("Perpendicular", 57, 58),
    Sketcher.Constraint("Perpendicular", 46, 64),
    Sketcher.Constraint("Perpendicular", 65, 66),
    Sketcher.Constraint("Perpendicular", 50, 68),
    Sketcher.Constraint("Perpendicular", 69, 70),
    Sketcher.Constraint("Perpendicular", 54, 72),
    Sketcher.Constraint("Perpendicular", 73, 74),
    Sketcher.Constraint("Perpendicular", 58, 76),
    Sketcher.Constraint("Perpendicular", 77, 78),
    Sketcher.Constraint("Horizontal", 19, 2, 22, 2),
    Sketcher.Constraint("Horizontal", 2, 2, 39, 2),
    Sketcher.Constraint("Horizontal", 0, 2, 41, 2),
    Sketcher.Constraint("Horizontal", 59, 2, 62, 2),
    Sketcher.Constraint("Equal", 61, 1),
    Sketcher.Constraint("Equal", 42, 20),
    Sketcher.Constraint("Equal", 4, 6),
    Sketcher.Constraint("Equal", 6, 8),
    Sketcher.Constraint("Equal", 5, 9),
    Sketcher.Constraint("Equal", 8, 10),
    Sketcher.Constraint("Equal", 10, 12),
    Sketcher.Constraint("Equal", 9, 13),
    Sketcher.Constraint("Equal", 12, 14),
    Sketcher.Constraint("Equal", 14, 16),
    Sketcher.Constraint("Equal", 13, 17),
    Sketcher.Constraint("Equal", 16, 18),
    Sketcher.Constraint("Diameter", 80, Q("76 mm")),
    Sketcher.Constraint("Radius", 3, Q("40 mm")),
    Sketcher.Constraint("DistanceX", 21, 2, 21, 1, Q("6 mm")),
    Sketcher.Constraint("Angle", 4, Q("18 deg")),
    Sketcher.Constraint("Angle", 8, Q("36 deg")),
    Sketcher.Constraint("Distance", 5, Q("6 mm")),
    Sketcher.Constraint("DistanceX", -1, 1, 0, 2, Q("43.5 mm")),
    Sketcher.Constraint("Distance", 4, Q("3.612659 mm")),
])
sketch1.setExpression("Constraints[208]", "Params.sketch1_diameter")
sketch1.setExpression("Constraints[209]", "Params.sketch1_radius")
sketch1.setExpression("Constraints[210]", "Params.sketch1_width")
sketch1.setExpression("Constraints[213]", "Params.sketch1_length")
pad1 = body.newObject("PartDesign::Pad", "Pad")
pad1.Profile = sketch1
pad1.setExpression("Length", "Params.pad1_length")

doc.recompute()
